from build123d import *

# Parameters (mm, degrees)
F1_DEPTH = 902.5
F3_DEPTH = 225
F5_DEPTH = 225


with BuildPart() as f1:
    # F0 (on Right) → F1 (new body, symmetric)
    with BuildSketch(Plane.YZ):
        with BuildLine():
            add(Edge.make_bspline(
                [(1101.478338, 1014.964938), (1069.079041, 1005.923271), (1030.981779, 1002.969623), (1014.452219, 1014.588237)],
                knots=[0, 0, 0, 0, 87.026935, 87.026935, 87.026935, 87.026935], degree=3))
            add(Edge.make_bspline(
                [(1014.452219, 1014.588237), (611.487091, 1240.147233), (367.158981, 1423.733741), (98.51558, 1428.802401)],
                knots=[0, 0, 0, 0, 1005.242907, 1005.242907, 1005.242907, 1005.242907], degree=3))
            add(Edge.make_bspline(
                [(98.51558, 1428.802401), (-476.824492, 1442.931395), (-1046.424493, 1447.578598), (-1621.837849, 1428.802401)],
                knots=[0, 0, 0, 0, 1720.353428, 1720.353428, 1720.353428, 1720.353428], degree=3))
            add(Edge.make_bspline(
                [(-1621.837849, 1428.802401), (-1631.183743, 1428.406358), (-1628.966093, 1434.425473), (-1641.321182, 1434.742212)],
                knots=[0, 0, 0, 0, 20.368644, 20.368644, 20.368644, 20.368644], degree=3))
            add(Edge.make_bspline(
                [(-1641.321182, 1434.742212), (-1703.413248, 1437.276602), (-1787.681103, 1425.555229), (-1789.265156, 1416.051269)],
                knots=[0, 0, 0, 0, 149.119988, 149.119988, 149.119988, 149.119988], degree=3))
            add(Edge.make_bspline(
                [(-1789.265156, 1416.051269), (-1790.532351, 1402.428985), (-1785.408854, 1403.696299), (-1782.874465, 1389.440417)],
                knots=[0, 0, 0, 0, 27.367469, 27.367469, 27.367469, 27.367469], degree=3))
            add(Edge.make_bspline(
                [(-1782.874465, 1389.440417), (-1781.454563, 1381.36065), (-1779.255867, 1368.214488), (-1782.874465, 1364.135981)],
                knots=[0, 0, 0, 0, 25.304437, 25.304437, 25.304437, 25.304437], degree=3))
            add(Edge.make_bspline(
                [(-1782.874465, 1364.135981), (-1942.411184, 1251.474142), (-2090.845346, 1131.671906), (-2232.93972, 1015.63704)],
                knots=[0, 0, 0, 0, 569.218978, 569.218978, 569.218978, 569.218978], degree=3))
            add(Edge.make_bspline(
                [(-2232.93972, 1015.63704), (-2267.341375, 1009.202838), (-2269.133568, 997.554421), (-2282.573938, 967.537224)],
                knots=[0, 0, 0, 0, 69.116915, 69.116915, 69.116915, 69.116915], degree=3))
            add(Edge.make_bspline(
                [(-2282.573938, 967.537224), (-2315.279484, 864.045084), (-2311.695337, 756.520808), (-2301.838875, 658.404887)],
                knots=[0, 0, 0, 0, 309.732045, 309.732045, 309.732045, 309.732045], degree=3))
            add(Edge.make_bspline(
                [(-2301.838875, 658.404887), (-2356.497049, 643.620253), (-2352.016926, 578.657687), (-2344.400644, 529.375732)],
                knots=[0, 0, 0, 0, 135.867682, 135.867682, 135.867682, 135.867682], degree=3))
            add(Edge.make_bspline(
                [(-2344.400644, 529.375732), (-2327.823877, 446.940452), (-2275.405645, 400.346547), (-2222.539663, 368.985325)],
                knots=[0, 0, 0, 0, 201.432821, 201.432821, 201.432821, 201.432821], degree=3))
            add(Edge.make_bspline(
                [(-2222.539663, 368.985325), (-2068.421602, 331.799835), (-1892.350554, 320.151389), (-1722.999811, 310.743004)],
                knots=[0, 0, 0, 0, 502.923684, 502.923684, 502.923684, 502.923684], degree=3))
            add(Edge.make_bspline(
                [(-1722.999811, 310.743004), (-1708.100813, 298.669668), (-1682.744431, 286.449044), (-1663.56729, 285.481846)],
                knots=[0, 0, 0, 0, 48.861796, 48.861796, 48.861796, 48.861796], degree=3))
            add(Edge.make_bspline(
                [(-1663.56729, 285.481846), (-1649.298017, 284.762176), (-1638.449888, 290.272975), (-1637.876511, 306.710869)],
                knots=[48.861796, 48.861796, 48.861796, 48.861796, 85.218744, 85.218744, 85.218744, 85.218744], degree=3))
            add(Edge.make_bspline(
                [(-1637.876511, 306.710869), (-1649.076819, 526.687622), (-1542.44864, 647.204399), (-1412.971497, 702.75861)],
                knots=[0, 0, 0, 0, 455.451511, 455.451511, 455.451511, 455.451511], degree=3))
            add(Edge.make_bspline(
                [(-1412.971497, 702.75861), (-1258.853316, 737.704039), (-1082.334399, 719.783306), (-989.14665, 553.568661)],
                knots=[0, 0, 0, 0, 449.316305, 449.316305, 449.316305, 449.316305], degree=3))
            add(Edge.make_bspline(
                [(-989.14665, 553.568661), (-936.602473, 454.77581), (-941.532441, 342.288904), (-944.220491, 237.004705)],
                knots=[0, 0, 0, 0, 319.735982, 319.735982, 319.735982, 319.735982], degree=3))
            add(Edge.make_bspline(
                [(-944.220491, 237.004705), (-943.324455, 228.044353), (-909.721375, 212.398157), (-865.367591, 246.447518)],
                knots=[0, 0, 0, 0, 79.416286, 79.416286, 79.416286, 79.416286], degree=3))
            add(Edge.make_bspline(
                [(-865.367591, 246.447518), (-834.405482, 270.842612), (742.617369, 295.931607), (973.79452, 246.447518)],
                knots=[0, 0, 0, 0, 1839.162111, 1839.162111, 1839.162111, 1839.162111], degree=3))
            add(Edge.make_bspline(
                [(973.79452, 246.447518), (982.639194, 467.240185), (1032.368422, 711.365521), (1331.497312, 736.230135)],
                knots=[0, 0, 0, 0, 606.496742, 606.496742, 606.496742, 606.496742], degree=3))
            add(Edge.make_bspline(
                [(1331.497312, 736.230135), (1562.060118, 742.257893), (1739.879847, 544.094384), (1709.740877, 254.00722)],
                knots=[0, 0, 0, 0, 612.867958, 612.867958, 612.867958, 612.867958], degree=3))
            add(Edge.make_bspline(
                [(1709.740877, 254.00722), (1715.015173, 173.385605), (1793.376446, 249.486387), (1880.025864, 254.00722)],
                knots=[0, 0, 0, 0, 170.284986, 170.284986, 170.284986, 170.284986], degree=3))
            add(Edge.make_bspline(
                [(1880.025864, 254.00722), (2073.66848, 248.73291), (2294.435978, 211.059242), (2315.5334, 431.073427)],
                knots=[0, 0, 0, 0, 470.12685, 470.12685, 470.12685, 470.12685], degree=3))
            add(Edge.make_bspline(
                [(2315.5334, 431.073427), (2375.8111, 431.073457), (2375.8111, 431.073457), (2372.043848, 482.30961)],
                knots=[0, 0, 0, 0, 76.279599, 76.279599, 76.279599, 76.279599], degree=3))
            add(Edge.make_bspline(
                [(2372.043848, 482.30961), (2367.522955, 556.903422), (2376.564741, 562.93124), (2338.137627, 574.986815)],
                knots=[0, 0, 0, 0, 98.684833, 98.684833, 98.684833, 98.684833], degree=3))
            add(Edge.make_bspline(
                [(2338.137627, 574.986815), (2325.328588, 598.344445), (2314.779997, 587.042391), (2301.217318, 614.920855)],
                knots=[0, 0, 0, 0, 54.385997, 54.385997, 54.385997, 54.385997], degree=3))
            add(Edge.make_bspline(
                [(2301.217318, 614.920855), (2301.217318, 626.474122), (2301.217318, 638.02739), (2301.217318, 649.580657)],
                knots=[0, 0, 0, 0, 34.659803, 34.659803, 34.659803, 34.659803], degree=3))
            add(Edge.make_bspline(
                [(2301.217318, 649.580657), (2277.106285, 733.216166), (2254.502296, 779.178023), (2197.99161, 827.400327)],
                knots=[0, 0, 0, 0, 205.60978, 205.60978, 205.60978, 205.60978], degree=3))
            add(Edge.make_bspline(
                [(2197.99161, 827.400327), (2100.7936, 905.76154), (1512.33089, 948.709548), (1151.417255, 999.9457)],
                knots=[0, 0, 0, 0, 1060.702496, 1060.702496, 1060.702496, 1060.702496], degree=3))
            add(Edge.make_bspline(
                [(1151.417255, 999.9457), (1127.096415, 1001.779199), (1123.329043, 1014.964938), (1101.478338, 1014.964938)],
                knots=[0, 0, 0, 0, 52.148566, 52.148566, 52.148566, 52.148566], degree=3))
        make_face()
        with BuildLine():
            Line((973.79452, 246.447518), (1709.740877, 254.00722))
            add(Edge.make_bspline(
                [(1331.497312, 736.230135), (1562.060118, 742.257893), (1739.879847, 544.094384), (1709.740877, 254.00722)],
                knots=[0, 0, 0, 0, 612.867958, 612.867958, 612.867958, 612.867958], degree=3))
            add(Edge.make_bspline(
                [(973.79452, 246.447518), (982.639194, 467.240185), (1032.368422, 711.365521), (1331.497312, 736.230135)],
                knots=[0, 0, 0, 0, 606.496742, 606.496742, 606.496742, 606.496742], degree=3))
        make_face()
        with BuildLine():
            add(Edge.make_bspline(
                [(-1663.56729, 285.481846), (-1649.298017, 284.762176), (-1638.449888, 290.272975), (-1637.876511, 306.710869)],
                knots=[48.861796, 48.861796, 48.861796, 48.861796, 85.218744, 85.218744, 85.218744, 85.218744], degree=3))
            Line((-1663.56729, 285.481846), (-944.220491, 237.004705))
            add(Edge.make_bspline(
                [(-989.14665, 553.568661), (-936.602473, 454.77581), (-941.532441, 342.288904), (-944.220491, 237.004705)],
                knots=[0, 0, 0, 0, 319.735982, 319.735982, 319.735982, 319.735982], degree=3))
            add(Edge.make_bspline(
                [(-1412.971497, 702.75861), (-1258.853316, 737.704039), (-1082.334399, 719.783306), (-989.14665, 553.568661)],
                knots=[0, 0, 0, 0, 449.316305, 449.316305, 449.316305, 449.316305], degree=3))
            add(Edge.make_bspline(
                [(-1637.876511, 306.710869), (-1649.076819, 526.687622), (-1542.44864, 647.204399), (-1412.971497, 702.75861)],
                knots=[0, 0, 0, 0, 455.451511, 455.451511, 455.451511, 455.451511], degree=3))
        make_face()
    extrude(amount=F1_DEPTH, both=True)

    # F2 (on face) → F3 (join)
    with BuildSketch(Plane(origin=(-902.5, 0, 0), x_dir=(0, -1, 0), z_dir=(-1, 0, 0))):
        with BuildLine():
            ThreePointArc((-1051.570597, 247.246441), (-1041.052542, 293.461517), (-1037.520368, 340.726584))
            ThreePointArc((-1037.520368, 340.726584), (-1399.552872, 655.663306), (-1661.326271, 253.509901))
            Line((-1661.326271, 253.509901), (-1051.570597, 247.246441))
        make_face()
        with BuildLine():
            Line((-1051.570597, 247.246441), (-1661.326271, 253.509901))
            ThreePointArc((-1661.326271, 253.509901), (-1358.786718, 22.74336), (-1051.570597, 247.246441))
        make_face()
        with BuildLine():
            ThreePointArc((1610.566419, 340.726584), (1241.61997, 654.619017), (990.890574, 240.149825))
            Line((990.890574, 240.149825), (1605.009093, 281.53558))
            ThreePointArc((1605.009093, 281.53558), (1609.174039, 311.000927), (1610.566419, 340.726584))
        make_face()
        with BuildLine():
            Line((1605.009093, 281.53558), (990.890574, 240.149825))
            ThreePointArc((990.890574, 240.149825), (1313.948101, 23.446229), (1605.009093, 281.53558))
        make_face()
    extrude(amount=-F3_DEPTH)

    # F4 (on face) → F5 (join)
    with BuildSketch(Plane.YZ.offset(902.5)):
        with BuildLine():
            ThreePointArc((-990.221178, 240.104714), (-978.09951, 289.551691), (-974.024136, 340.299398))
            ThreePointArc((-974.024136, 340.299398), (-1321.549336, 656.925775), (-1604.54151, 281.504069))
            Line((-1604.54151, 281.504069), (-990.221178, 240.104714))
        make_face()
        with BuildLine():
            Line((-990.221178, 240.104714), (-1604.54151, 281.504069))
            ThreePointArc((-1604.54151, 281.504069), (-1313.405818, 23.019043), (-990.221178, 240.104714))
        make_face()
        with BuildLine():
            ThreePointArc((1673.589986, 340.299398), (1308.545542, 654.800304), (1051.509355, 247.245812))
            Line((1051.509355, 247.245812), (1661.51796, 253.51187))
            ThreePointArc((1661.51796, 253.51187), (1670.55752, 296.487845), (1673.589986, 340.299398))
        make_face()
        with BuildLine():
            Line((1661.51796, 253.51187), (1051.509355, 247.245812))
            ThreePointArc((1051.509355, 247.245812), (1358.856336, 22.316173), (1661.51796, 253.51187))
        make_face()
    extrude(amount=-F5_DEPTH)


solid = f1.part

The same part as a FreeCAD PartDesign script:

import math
import FreeCAD as App
import Part
import Sketcher

V = App.Vector

doc = App.newDocument("Part")
body = doc.addObject("PartDesign::Body", "Body")

sketch1 = body.newObject("Sketcher::SketchObject", "Sketch")
sketch1.AttachmentSupport = (doc.getObject("YZ_Plane"), [""])
sketch1.MapMode = "FlatFace"
sketch1.addGeometry(Part.BSplineCurve([V(1101.478338, 1014.964938, 0), V(1069.079041, 1005.923271, 0), V(1030.981779, 1002.969623, 0), V(1014.452219, 1014.588237, 0)], [4, 4], [0, 87.026935], False, 3, [1, 1, 1, 1], False), False)
sketch1.addGeometry(Part.BSplineCurve([V(1014.452219, 1014.588237, 0), V(611.487091, 1240.147233, 0), V(367.158981, 1423.733741, 0), V(98.51558, 1428.802401, 0)], [4, 4], [0, 1005.242907], False, 3, [1, 1, 1, 1], False), False)
sketch1.addGeometry(Part.BSplineCurve([V(98.51558, 1428.802401, 0), V(-476.824492, 1442.931395, 0), V(-1046.424493, 1447.578598, 0), V(-1621.837849, 1428.802401, 0)], [4, 4], [0, 1720.353428], False, 3, [1, 1, 1, 1], False), False)
sketch1.addGeometry(Part.BSplineCurve([V(-1621.837849, 1428.802401, 0), V(-1631.183743, 1428.406358, 0), V(-1628.966093, 1434.425473, 0), V(-1641.321182, 1434.742212, 0)], [4, 4], [0, 20.368644], False, 3, [1, 1, 1, 1], False), False)
sketch1.addGeometry(Part.BSplineCurve([V(-1641.321182, 1434.742212, 0), V(-1703.413248, 1437.276602, 0), V(-1787.681103, 1425.555229, 0), V(-1789.265156, 1416.051269, 0)], [4, 4], [0, 149.119988], False, 3, [1, 1, 1, 1], False), False)
sketch1.addGeometry(Part.BSplineCurve([V(-1789.265156, 1416.051269, 0), V(-1790.532351, 1402.428985, 0), V(-1785.408854, 1403.696299, 0), V(-1782.874465, 1389.440417, 0)], [4, 4], [0, 27.367469], False, 3, [1, 1, 1, 1], False), False)
sketch1.addGeometry(Part.BSplineCurve([V(-1782.874465, 1389.440417, 0), V(-1781.454563, 1381.36065, 0), V(-1779.255867, 1368.214488, 0), V(-1782.874465, 1364.135981, 0)], [4, 4], [0, 25.304437], False, 3, [1, 1, 1, 1], False), False)
sketch1.addGeometry(Part.BSplineCurve([V(-1782.874465, 1364.135981, 0), V(-1942.411184, 1251.474142, 0), V(-2090.845346, 1131.671906, 0), V(-2232.93972, 1015.63704, 0)], [4, 4], [0, 569.218978], False, 3, [1, 1, 1, 1], False), False)
sketch1.addGeometry(Part.BSplineCurve([V(-2232.93972, 1015.63704, 0), V(-2267.341375, 1009.202838, 0), V(-2269.133568, 997.554421, 0), V(-2282.573938, 967.537224, 0)], [4, 4], [0, 69.116915], False, 3, [1, 1, 1, 1], False), False)
sketch1.addGeometry(Part.BSplineCurve([V(-2282.573938, 967.537224, 0), V(-2315.279484, 864.045084, 0), V(-2311.695337, 756.520808, 0), V(-2301.838875, 658.404887, 0)], [4, 4], [0, 309.732045], False, 3, [1, 1, 1, 1], False), False)
sketch1.addGeometry(Part.BSplineCurve([V(-2301.838875, 658.404887, 0), V(-2356.497049, 643.620253, 0), V(-2352.016926, 578.657687, 0), V(-2344.400644, 529.375732, 0)], [4, 4], [0, 135.867682], False, 3, [1, 1, 1, 1], False), False)
sketch1.addGeometry(Part.BSplineCurve([V(-2344.400644, 529.375732, 0), V(-2327.823877, 446.940452, 0), V(-2275.405645, 400.346547, 0), V(-2222.539663, 368.985325, 0)], [4, 4], [0, 201.432821], False, 3, [1, 1, 1, 1], False), False)
sketch1.addGeometry(Part.BSplineCurve([V(-2222.539663, 368.985325, 0), V(-2068.421602, 331.799835, 0), V(-1892.350554, 320.151389, 0), V(-1722.999811, 310.743004, 0)], [4, 4], [0, 502.923684], False, 3, [1, 1, 1, 1], False), False)
sketch1.addGeometry(Part.BSplineCurve([V(-1722.999811, 310.743004, 0), V(-1708.100813, 298.669668, 0), V(-1682.744431, 286.449044, 0), V(-1663.56729, 285.481846, 0)], [4, 4], [0, 48.861796], False, 3, [1, 1, 1, 1], False), False)
sketch1.addGeometry(Part.LineSegment(V(-1663.56729, 285.481846, 0), V(-944.220491, 237.004705, 0)), False)
sketch1.addGeometry(Part.BSplineCurve([V(-944.220491, 237.004705, 0), V(-943.324455, 228.044353, 0), V(-909.721375, 212.398157, 0), V(-865.367591, 246.447518, 0)], [4, 4], [0, 79.416286], False, 3, [1, 1, 1, 1], False), False)
sketch1.addGeometry(Part.BSplineCurve([V(-865.367591, 246.447518, 0), V(-834.405482, 270.842612, 0), V(742.617369, 295.931607, 0), V(973.79452, 246.447518, 0)], [4, 4], [0, 1839.162111], False, 3, [1, 1, 1, 1], False), False)
sketch1.addGeometry(Part.LineSegment(V(973.79452, 246.447518, 0), V(1709.740877, 254.00722, 0)), False)
sketch1.addGeometry(Part.BSplineCurve([V(1709.740877, 254.00722, 0), V(1715.015173, 173.385605, 0), V(1793.376446, 249.486387, 0), V(1880.025864, 254.00722, 0)], [4, 4], [0, 170.284986], False, 3, [1, 1, 1, 1], False), False)
sketch1.addGeometry(Part.BSplineCurve([V(1880.025864, 254.00722, 0), V(2073.66848, 248.73291, 0), V(2294.435978, 211.059242, 0), V(2315.5334, 431.073427, 0)], [4, 4], [0, 470.12685], False, 3, [1, 1, 1, 1], False), False)
sketch1.addGeometry(Part.BSplineCurve([V(2315.5334, 431.073427, 0), V(2375.8111, 431.073457, 0), V(2375.8111, 431.073457, 0), V(2372.043848, 482.30961, 0)], [4, 4], [0, 76.279599], False, 3, [1, 1, 1, 1], False), False)
sketch1.addGeometry(Part.BSplineCurve([V(2372.043848, 482.30961, 0), V(2367.522955, 556.903422, 0), V(2376.564741, 562.93124, 0), V(2338.137627, 574.986815, 0)], [4, 4], [0, 98.684833], False, 3, [1, 1, 1, 1], False), False)
sketch1.addGeometry(Part.BSplineCurve([V(2338.137627, 574.986815, 0), V(2325.328588, 598.344445, 0), V(2314.779997, 587.042391, 0), V(2301.217318, 614.920855, 0)], [4, 4], [0, 54.385997], False, 3, [1, 1, 1, 1], False), False)
sketch1.addGeometry(Part.BSplineCurve([V(2301.217318, 614.920855, 0), V(2301.217318, 626.474122, 0), V(2301.217318, 638.02739, 0), V(2301.217318, 649.580657, 0)], [4, 4], [0, 34.659803], False, 3, [1, 1, 1, 1], False), False)
sketch1.addGeometry(Part.BSplineCurve([V(2301.217318, 649.580657, 0), V(2277.106285, 733.216166, 0), V(2254.502296, 779.178023, 0), V(2197.99161, 827.400327, 0)], [4, 4], [0, 205.60978], False, 3, [1, 1, 1, 1], False), False)
sketch1.addGeometry(Part.BSplineCurve([V(2197.99161, 827.400327, 0), V(2100.7936, 905.76154, 0), V(1512.33089, 948.709548, 0), V(1151.417255, 999.9457, 0)], [4, 4], [0, 1060.702496], False, 3, [1, 1, 1, 1], False), False)
sketch1.addGeometry(Part.BSplineCurve([V(1151.417255, 999.9457, 0), V(1127.096415, 1001.779199, 0), V(1123.329043, 1014.964938, 0), V(1101.478338, 1014.964938, 0)], [4, 4], [0, 52.148566], False, 3, [1, 1, 1, 1], False), False)
sketch1.addConstraint(Sketcher.Constraint("Block", 0))
sketch1.addConstraint(Sketcher.Constraint("Block", 1))
sketch1.addConstraint(Sketcher.Constraint("Block", 2))
sketch1.addConstraint(Sketcher.Constraint("Block", 3))
sketch1.addConstraint(Sketcher.Constraint("Block", 4))
sketch1.addConstraint(Sketcher.Constraint("Block", 5))
sketch1.addConstraint(Sketcher.Constraint("Block", 6))
sketch1.addConstraint(Sketcher.Constraint("Block", 7))
sketch1.addConstraint(Sketcher.Constraint("Block", 8))
sketch1.addConstraint(Sketcher.Constraint("Block", 9))
sketch1.addConstraint(Sketcher.Constraint("Block", 10))
sketch1.addConstraint(Sketcher.Constraint("Block", 11))
sketch1.addConstraint(Sketcher.Constraint("Block", 12))
sketch1.addConstraint(Sketcher.Constraint("Block", 13))
sketch1.addConstraint(Sketcher.Constraint("Block", 15))
sketch1.addConstraint(Sketcher.Constraint("Block", 16))
sketch1.addConstraint(Sketcher.Constraint("Block", 18))
sketch1.addConstraint(Sketcher.Constraint("Block", 19))
sketch1.addConstraint(Sketcher.Constraint("Block", 20))
sketch1.addConstraint(Sketcher.Constraint("Block", 21))
sketch1.addConstraint(Sketcher.Constraint("Block", 22))
sketch1.addConstraint(Sketcher.Constraint("Block", 23))
sketch1.addConstraint(Sketcher.Constraint("Block", 24))
sketch1.addConstraint(Sketcher.Constraint("Block", 25))
sketch1.addConstraint(Sketcher.Constraint("Block", 26))
sketch1.addConstraint(Sketcher.Constraint("Coincident", 13, 2, 14, 1))
sketch1.addConstraint(Sketcher.Constraint("Coincident", 14, 2, 15, 1))
sketch1.addConstraint(Sketcher.Constraint("Coincident", 16, 2, 17, 1))
sketch1.addConstraint(Sketcher.Constraint("Coincident", 17, 2, 18, 1))
pad1 = body.newObject("PartDesign::Pad", "Pad")
pad1.Profile = sketch1
pad1.Length = 1805
pad1.Midplane = True

sketch2 = body.newObject("Sketcher::SketchObject", "Sketch001")
sketch2.AttachmentSupport = (doc.getObject("YZ_Plane"), [""])
sketch2.MapMode = "FlatFace"
sketch2.AttachmentOffset = App.Placement(V(0, 0, -902.5), App.Rotation())
sketch2.addGeometry(Part.ArcOfCircle(Part.Circle(V(1356, 341, 0), V(0, 0, 1), 318), math.radians(180), math.radians(197.1)), False)
sketch2.addGeometry(Part.ArcOfCircle(Part.Circle(V(1356, 341, 0), V(0, 0, 1), 318), math.radians(-16), math.radians(180)), False)
sketch2.addGeometry(Part.ArcOfCircle(Part.Circle(V(1356, 341, 0), V(0, 0, 1), 318), math.radians(-163), math.radians(-16)), False)
sketch2.addGeometry(Part.ArcOfCircle(Part.Circle(V(-1293, 341, 0), V(0, 0, 1), 318), math.radians(-18), math.radians(180)), False)
sketch2.addGeometry(Part.ArcOfCircle(Part.Circle(V(-1293, 341, 0), V(0, 0, 1), 318), math.radians(-169), math.radians(-18)), False)
sketch2.addGeometry(Part.ArcOfCircle(Part.Circle(V(-1293, 341, 0), V(0, 0, 1), 318), math.radians(-180), math.radians(-169.27)), False)
sketch2.addConstraint(Sketcher.Constraint("Tangent", 0, 1, 1, 2))
sketch2.addConstraint(Sketcher.Constraint("Tangent", 1, 1, 2, 2))
sketch2.addConstraint(Sketcher.Constraint("Coincident", 2, 1, 0, 2))
sketch2.addConstraint(Sketcher.Constraint("Tangent", 3, 1, 4, 2))
sketch2.addConstraint(Sketcher.Constraint("Tangent", 4, 1, 5, 2))
sketch2.addConstraint(Sketcher.Constraint("Coincident", 5, 1, 3, 2))
sketch2.addConstraint(Sketcher.Constraint("Equal", 1, 2))
sketch2.addConstraint(Sketcher.Constraint("Equal", 2, 3))
sketch2.addConstraint(Sketcher.Constraint("Equal", 3, 4))
sketch2.addConstraint(Sketcher.Constraint("Horizontal", 2, 3, 3, 3))
sketch2.addConstraint(Sketcher.Constraint("Horizontal", 4, 3, 0, 1))
sketch2.addConstraint(Sketcher.Constraint("Horizontal", 0, 1, 5, 1))
sketch2.addConstraint(Sketcher.Constraint("Radius", 1, 318.0))
sketch2.addConstraint(Sketcher.Constraint("DistanceY", -1, 1, 1, 1, 253.509901))
sketch2.addConstraint(Sketcher.Constraint("DistanceX", -1, 1, 1, 3, 1355.520368))
sketch2.addConstraint(Sketcher.Constraint("DistanceX", 3, 3, -1, 1, 1292.566419))
sketch2.addConstraint(Sketcher.Constraint("DistanceY", -1, 1, 5, 3, 340.726589))
sketch2.addConstraint(Sketcher.Constraint("DistanceY", -1, 1, 2, 1, 247.246441))
sketch2.addConstraint(Sketcher.Constraint("DistanceY", -1, 1, 4, 1, 281.53558))
sketch2.addConstraint(Sketcher.Constraint("DistanceX", 5, 3, 3, 1, 301.675839))
pad2 = body.newObject("PartDesign::Pad", "Pad001")
pad2.Profile = sketch2
pad2.Length = 225

sketch3 = body.newObject("Sketcher::SketchObject", "Sketch002")
sketch3.AttachmentSupport = (doc.getObject("YZ_Plane"), [""])
sketch3.MapMode = "FlatFace"
sketch3.AttachmentOffset = App.Placement(V(0, 0, 902.5), App.Rotation())
sketch3.addGeometry(Part.ArcOfCircle(Part.Circle(V(-1292.024076, 340.299388, 0), V(0, 0, 1), 317.99994), math.radians(-18.365501), math.radians(0.000002)), False)
sketch3.addGeometry(Part.ArcOfCircle(Part.Circle(V(-1292.024136, 340.299398, 0), V(0, 0, 1), 318), math.radians(0), math.radians(190.654776)), False)
sketch3.addGeometry(Part.ArcOfCircle(Part.Circle(V(-1292.024136, 340.299398, 0), V(0, 0, 1), 318), math.radians(-169.345224), math.radians(-18.3655)), False)
sketch3.addGeometry(Part.ArcOfCircle(Part.Circle(V(1355.589986, 340.299397, 0), V(0, 0, 1), 318), math.radians(0), math.radians(197.014957)), False)
sketch3.addGeometry(Part.ArcOfCircle(Part.Circle(V(1355.589986, 340.299397, 0), V(0, 0, 1), 318), math.radians(-162.985043), math.radians(-15.837905)), False)
sketch3.addGeometry(Part.ArcOfCircle(Part.Circle(V(1355.589905, 340.299408, 0), V(0, 0, 1), 318.000081), math.radians(-15.837902), math.radians(-0.000002)), False)
sketch3.addConstraint(Sketcher.Constraint("Coincident", 0, 2, 1, 1))
sketch3.addConstraint(Sketcher.Constraint("Coincident", 1, 2, 2, 1))
sketch3.addConstraint(Sketcher.Constraint("Coincident", 2, 2, 0, 1))
sketch3.addConstraint(Sketcher.Constraint("Coincident", 3, 2, 4, 1))
sketch3.addConstraint(Sketcher.Constraint("Coincident", 4, 2, 5, 1))
sketch3.addConstraint(Sketcher.Constraint("Coincident", 5, 2, 3, 1))
sketch3.addConstraint(Sketcher.Constraint("Coincident", 2, 3, 1, 3))
sketch3.addConstraint(Sketcher.Constraint("Coincident", 4, 3, 3, 3))
sketch3.addConstraint(Sketcher.Constraint("Radius", 1, 318.0))
sketch3.addConstraint(Sketcher.Constraint("Radius", 3, 318.0))
sketch3.addConstraint(Sketcher.Constraint("Radius", 0, 317.99994))
sketch3.addConstraint(Sketcher.Constraint("Radius", 5, 318.000081))
sketch3.addConstraint(Sketcher.Constraint("DistanceY", -1, 1, 1, 3, 340.299398))
sketch3.addConstraint(Sketcher.Constraint("DistanceY", -1, 1, 0, 2, 340.299398))
sketch3.addConstraint(Sketcher.Constraint("DistanceY", -1, 1, 5, 2, 340.299398))
sketch3.addConstraint(Sketcher.Constraint("DistanceX", 0, 3, 2, 2, 301.802898))
sketch3.addConstraint(Sketcher.Constraint("DistanceX", 1, 2, -1, 1, 1604.54151))
sketch3.addConstraint(Sketcher.Constraint("DistanceY", -1, 1, 1, 2, 281.504069))
sketch3.addConstraint(Sketcher.Constraint("DistanceY", -1, 1, 3, 2, 247.245812))
sketch3.addConstraint(Sketcher.Constraint("DistanceX", -1, 1, 4, 2, 1661.51796))
sketch3.addConstraint(Sketcher.Constraint("DistanceY", -1, 1, 4, 2, 253.51187))
sketch3.addConstraint(Sketcher.Constraint("DistanceX", 2, 3, 3, 3, 2647.614122))
pad3 = body.newObject("PartDesign::Pad", "Pad002")
pad3.Profile = sketch3
pad3.Length = 225
pad3.Reversed = True

doc.recompute()
